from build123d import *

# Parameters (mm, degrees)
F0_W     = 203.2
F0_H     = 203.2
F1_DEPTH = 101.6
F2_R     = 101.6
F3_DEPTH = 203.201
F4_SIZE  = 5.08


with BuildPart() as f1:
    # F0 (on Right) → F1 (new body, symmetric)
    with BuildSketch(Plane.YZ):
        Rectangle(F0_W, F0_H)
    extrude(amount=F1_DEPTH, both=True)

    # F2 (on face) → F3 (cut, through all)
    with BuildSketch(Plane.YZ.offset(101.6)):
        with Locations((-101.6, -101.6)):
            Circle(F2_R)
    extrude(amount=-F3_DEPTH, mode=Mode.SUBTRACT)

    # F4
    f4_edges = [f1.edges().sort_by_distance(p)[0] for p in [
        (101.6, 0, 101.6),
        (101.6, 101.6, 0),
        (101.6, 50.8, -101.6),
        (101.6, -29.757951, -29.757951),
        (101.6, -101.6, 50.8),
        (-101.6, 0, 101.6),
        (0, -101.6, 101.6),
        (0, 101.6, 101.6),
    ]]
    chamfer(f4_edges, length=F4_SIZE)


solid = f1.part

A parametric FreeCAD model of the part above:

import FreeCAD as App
import Part
import Sketcher

V = App.Vector
Q = App.Units.Quantity


def edges_at(feature, points):
    """Names of the edges that pass closest to the given points."""
    edges = feature.Shape.Edges
    near = lambda p: min(range(len(edges)), key=lambda i: edges[i].distToShape(Part.Vertex(*p))[0])
    return sorted({f"Edge{near(p) + 1}" for p in points})


def add_polygon(sketch, points):
    """Adds a closed chain of lines whose ends are joined by coincident constraints."""
    first, n = sketch.GeometryCount, len(points)
    for a, b in zip(points, points[1:] + points[:1]):
        sketch.addGeometry(Part.LineSegment(App.Vector(*a, 0), App.Vector(*b, 0)), False)
    for i in range(n):
        sketch.addConstraint(Sketcher.Constraint("Coincident", first + i, 2, first + (i + 1) % n, 1))

doc = App.newDocument("Part")
body = doc.addObject("PartDesign::Body", "Body")

sketch1 = body.newObject("Sketcher::SketchObject", "Sketch")
sketch1.AttachmentSupport = (doc.getObject("YZ_Plane"), [""])
sketch1.MapMode = "FlatFace"
add_polygon(sketch1, [(-101.6, 101.6), (-101.6, -101.6), (101.6, -101.6), (101.6, 101.6)])
sketch1.addConstraint([
    Sketcher.Constraint("Vertical", 0),
    Sketcher.Constraint("Horizontal", 1),
    Sketcher.Constraint("Vertical", 2),
    Sketcher.Constraint("Horizontal", 3),
    Sketcher.Constraint("Symmetric", 0, 2, 2, 2, -1, 1),
    Sketcher.Constraint("Equal", 3, 0),
    Sketcher.Constraint("DistanceX", 1, 1, 1, 2, Q("8 in")),
])
pad1 = body.newObject("PartDesign::Pad", "Pad")
pad1.Profile = sketch1
pad1.Length = Q("8 in")
pad1.Midplane = True

sketch2 = body.newObject("Sketcher::SketchObject", "Sketch001")
sketch2.AttachmentSupport = (doc.getObject("YZ_Plane"), [""])
sketch2.MapMode = "FlatFace"
sketch2.AttachmentOffset = App.Placement(V(0, 0, 4 * 25.4), App.Rotation())
sketch2.addGeometry(Part.Circle(V(-101.6, -101.6, 0), V(0, 0, 1), 101.6), False)
sketch2.addConstraint([
    Sketcher.Constraint("Diameter", 0, Q("8 in")),
    Sketcher.Constraint("DistanceX", 0, 3, -1, 1, Q("4 in")),
    Sketcher.Constraint("DistanceY", 0, 3, -1, 1, Q("4 in")),
])
pocket1 = body.newObject("PartDesign::Pocket", "Pocket")
pocket1.Profile = sketch2
pocket1.Type = "ThroughAll"
doc.recompute()

chamfer = body.newObject("PartDesign::Chamfer", "Chamfer")
chamfer.Base = (pocket1, edges_at(pocket1, [
    (101.6, 0, 101.6),
    (101.6, 101.6, 0),
    (101.6, 50.8, -101.6),
    (101.6, -29.758, -29.758),
    (101.6, -101.6, 50.8),
    (-101.6, 0, 101.6),
    (0, -101.6, 101.6),
    (0, 101.6, 101.6),
]))
chamfer.Size = Q("0.2 in")

doc.recompute()
